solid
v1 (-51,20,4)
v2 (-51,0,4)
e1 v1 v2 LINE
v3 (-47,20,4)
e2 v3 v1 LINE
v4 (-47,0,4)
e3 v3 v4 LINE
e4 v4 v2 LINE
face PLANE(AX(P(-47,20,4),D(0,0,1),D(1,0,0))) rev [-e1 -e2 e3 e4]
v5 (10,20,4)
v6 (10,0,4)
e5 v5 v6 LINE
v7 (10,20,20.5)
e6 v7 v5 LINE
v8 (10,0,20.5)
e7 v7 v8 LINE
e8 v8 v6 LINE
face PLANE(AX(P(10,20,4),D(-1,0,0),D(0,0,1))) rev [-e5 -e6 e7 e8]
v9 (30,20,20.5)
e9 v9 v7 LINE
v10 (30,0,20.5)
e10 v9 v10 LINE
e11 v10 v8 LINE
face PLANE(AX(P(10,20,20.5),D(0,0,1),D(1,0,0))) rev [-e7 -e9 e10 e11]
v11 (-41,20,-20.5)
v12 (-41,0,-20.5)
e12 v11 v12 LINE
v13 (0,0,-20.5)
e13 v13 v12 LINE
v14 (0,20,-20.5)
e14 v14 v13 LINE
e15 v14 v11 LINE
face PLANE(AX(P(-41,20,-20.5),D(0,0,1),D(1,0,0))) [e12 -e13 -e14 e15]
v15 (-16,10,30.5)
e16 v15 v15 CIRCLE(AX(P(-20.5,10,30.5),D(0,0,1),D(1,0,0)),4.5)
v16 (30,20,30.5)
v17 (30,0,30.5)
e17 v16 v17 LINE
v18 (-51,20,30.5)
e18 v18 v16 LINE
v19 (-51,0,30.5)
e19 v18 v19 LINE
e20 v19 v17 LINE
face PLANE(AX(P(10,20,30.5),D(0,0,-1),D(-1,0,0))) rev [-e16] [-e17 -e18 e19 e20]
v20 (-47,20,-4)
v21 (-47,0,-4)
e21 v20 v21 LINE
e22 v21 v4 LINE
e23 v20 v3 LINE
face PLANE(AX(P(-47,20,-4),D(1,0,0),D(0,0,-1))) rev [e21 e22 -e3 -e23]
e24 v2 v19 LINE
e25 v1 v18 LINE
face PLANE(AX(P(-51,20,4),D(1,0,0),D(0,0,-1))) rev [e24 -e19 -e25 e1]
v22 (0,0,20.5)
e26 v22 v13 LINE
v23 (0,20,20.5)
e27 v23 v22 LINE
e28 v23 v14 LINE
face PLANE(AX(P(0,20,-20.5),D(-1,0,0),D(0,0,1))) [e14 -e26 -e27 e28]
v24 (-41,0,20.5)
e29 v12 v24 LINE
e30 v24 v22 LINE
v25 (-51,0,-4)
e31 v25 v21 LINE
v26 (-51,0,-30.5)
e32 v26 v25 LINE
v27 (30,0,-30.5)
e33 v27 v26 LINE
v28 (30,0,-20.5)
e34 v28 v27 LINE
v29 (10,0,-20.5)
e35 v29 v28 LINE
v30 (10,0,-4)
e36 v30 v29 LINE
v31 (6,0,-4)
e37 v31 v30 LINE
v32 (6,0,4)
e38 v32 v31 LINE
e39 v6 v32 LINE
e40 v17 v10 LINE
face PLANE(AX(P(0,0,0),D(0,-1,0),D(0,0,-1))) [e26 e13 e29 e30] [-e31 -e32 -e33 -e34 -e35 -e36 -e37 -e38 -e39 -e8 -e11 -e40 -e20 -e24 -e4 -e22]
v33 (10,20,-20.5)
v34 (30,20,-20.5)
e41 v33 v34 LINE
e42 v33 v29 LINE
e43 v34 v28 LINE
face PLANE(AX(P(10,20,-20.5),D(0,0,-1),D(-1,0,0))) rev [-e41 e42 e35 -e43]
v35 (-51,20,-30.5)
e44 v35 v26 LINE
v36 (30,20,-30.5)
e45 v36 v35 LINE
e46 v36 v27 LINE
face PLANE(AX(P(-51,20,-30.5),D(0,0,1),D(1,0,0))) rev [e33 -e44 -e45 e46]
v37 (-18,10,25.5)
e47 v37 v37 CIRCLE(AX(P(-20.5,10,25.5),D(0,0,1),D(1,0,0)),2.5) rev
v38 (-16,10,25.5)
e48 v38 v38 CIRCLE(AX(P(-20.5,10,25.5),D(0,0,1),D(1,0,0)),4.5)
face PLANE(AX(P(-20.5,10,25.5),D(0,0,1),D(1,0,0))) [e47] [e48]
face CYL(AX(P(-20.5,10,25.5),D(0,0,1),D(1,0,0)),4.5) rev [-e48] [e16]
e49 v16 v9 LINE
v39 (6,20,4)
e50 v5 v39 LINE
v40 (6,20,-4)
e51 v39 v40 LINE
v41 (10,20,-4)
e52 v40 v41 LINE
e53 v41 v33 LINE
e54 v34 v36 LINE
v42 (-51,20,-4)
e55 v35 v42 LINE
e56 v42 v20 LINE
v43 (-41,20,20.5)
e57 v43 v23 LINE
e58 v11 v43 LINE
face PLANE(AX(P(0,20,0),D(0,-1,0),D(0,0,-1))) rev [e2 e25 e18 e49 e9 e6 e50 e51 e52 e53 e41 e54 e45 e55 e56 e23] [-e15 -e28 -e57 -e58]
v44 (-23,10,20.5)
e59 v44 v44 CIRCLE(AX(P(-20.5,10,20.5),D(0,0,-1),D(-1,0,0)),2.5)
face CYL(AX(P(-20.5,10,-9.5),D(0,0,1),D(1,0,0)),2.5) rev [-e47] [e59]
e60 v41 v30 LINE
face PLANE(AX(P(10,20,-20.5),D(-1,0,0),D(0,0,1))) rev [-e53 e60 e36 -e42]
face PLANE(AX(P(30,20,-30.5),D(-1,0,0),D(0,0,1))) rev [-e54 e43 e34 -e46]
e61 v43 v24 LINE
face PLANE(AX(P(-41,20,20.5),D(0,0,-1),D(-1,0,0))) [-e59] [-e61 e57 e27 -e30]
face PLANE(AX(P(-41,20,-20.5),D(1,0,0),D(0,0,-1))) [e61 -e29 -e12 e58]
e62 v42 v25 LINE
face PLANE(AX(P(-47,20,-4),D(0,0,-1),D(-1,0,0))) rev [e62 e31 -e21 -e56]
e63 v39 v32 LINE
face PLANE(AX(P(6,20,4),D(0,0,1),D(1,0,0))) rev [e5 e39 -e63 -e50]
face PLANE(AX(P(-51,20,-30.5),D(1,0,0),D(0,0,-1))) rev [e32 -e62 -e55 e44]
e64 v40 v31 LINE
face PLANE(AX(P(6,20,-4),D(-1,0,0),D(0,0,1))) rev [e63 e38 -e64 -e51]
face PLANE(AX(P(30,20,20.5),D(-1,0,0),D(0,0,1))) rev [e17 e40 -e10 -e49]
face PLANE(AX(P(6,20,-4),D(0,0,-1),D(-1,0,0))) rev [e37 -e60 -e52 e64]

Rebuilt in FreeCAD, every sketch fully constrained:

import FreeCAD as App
import Part
import Sketcher

V = App.Vector


def add_polygon(sketch, points):
    """Adds a closed chain of lines whose ends are joined by coincident constraints."""
    first, n = sketch.GeometryCount, len(points)
    for a, b in zip(points, points[1:] + points[:1]):
        sketch.addGeometry(Part.LineSegment(App.Vector(*a, 0), App.Vector(*b, 0)), False)
    for i in range(n):
        sketch.addConstraint(Sketcher.Constraint("Coincident", first + i, 2, first + (i + 1) % n, 1))

doc = App.newDocument("Part")
body = doc.addObject("PartDesign::Body", "Body")

# Sketch on XZ plane
sketch1 = body.newObject("Sketcher::SketchObject", "Sketch")
sketch1.AttachmentSupport = (doc.getObject("XZ_Plane"), [""])
sketch1.MapMode = "FlatFace"
add_polygon(sketch1, [(30, -30.5), (-51, -30.5), (-51, -4), (-47, -4), (-47, 4), (-51, 4), (-51, 30.5), (30, 30.5), (30, 20.5), (10, 20.5), (10, 4), (6, 4), (6, -4), (10, -4), (10, -20.5), (30, -20.5)])  # lines 0-15
add_polygon(sketch1, [(-41, 20.5), (-41, -20.5), (0, -20.5), (0, 20.5)])  # lines 16-19
sketch1.addConstraint([
    Sketcher.Constraint("Horizontal", 0),
    Sketcher.Constraint("Vertical", 1),
    Sketcher.Constraint("Horizontal", 2),
    Sketcher.Constraint("Vertical", 3),
    Sketcher.Constraint("Horizontal", 4),
    Sketcher.Constraint("Vertical", 5),
    Sketcher.Constraint("Horizontal", 6),
    Sketcher.Constraint("Vertical", 7),
    Sketcher.Constraint("Horizontal", 8),
    Sketcher.Constraint("Vertical", 9),
    Sketcher.Constraint("Horizontal", 10),
    Sketcher.Constraint("Vertical", 11),
    Sketcher.Constraint("Horizontal", 12),
    Sketcher.Constraint("Vertical", 13),
    Sketcher.Constraint("Horizontal", 14),
    Sketcher.Constraint("Vertical", 15),
    Sketcher.Constraint("Vertical", 16),
    Sketcher.Constraint("Horizontal", 17),
    Sketcher.Constraint("Vertical", 18),
    Sketcher.Constraint("Horizontal", 19),
    Sketcher.Constraint("Symmetric", 17, 2, 18, 2, -1, 1),
    Sketcher.Constraint("Symmetric", 1, 2, 4, 2, -1),
    Sketcher.Constraint("Symmetric", 9, 2, 12, 2, -1),
    Sketcher.Constraint("Symmetric", 7, 2, 14, 2, -1),
    Sketcher.Constraint("Horizontal", 4, 2, 9, 2),
    Sketcher.Constraint("Horizontal", 14, 2, 16, 2),
    Sketcher.Constraint("Equal", 4, 10),
    Sketcher.Constraint("Equal", 1, 5),
    Sketcher.Constraint("Equal", 19, 16),
    Sketcher.Constraint("DistanceX", 0, 2, 0, 1, 81.0),
    Sketcher.Constraint("DistanceX", 2, 1, 2, 2, 4.0),
    Sketcher.Constraint("DistanceX", 8, 2, 8, 1, 20.0),
    Sketcher.Constraint("DistanceX", 17, 1, 17, 2, 41.0),
    Sketcher.Constraint("DistanceY", 3, 1, 3, 2, 8.0),
    Sketcher.Constraint("DistanceY", 7, 2, 7, 1, 10.0),
    Sketcher.Constraint("DistanceX", 0, 2, -1, 1, 51.0),
])
pad1 = body.newObject("PartDesign::Pad", "Pad")
pad1.Profile = sketch1
pad1.Length = 20
pad1.Reversed = True

# Sketch on XY plane
sketch2 = body.newObject("Sketcher::SketchObject", "Sketch001")
sketch2.AttachmentSupport = (doc.getObject("XY_Plane"), [""])
sketch2.MapMode = "FlatFace"
sketch2.AttachmentOffset = App.Placement(V(0, 0, 30.5), App.Rotation())
sketch2.addGeometry(Part.Circle(V(-20.5, 10, 0), V(0, 0, 1), 2.5), False)
sketch2.addConstraint([
    Sketcher.Constraint("Diameter", 0, 5.0),
    Sketcher.Constraint("DistanceY", -1, 1, 0, 3, 10.0),
    Sketcher.Constraint("DistanceX", 0, 3, -1, 1, 20.5),
])
pocket1 = body.newObject("PartDesign::Pocket", "Pocket")
pocket1.Profile = sketch2
pocket1.Length = 40

# Sketch on XY plane
sketch3 = body.newObject("Sketcher::SketchObject", "Sketch002")
sketch3.AttachmentSupport = (doc.getObject("XY_Plane"), [""])
sketch3.MapMode = "FlatFace"
sketch3.AttachmentOffset = App.Placement(V(0, 0, 30.5), App.Rotation())
sketch3.addGeometry(Part.Circle(V(-20.5, 10, 0), V(0, 0, 1), 4.5), False)
sketch3.addConstraint([
    Sketcher.Constraint("Diameter", 0, 9.0),
    Sketcher.Constraint("DistanceY", -1, 1, 0, 3, 10.0),
    Sketcher.Constraint("DistanceX", 0, 3, -1, 1, 20.5),
])
pocket2 = body.newObject("PartDesign::Pocket", "Pocket001")
pocket2.Profile = sketch3
pocket2.Length = 5

doc.recompute()
